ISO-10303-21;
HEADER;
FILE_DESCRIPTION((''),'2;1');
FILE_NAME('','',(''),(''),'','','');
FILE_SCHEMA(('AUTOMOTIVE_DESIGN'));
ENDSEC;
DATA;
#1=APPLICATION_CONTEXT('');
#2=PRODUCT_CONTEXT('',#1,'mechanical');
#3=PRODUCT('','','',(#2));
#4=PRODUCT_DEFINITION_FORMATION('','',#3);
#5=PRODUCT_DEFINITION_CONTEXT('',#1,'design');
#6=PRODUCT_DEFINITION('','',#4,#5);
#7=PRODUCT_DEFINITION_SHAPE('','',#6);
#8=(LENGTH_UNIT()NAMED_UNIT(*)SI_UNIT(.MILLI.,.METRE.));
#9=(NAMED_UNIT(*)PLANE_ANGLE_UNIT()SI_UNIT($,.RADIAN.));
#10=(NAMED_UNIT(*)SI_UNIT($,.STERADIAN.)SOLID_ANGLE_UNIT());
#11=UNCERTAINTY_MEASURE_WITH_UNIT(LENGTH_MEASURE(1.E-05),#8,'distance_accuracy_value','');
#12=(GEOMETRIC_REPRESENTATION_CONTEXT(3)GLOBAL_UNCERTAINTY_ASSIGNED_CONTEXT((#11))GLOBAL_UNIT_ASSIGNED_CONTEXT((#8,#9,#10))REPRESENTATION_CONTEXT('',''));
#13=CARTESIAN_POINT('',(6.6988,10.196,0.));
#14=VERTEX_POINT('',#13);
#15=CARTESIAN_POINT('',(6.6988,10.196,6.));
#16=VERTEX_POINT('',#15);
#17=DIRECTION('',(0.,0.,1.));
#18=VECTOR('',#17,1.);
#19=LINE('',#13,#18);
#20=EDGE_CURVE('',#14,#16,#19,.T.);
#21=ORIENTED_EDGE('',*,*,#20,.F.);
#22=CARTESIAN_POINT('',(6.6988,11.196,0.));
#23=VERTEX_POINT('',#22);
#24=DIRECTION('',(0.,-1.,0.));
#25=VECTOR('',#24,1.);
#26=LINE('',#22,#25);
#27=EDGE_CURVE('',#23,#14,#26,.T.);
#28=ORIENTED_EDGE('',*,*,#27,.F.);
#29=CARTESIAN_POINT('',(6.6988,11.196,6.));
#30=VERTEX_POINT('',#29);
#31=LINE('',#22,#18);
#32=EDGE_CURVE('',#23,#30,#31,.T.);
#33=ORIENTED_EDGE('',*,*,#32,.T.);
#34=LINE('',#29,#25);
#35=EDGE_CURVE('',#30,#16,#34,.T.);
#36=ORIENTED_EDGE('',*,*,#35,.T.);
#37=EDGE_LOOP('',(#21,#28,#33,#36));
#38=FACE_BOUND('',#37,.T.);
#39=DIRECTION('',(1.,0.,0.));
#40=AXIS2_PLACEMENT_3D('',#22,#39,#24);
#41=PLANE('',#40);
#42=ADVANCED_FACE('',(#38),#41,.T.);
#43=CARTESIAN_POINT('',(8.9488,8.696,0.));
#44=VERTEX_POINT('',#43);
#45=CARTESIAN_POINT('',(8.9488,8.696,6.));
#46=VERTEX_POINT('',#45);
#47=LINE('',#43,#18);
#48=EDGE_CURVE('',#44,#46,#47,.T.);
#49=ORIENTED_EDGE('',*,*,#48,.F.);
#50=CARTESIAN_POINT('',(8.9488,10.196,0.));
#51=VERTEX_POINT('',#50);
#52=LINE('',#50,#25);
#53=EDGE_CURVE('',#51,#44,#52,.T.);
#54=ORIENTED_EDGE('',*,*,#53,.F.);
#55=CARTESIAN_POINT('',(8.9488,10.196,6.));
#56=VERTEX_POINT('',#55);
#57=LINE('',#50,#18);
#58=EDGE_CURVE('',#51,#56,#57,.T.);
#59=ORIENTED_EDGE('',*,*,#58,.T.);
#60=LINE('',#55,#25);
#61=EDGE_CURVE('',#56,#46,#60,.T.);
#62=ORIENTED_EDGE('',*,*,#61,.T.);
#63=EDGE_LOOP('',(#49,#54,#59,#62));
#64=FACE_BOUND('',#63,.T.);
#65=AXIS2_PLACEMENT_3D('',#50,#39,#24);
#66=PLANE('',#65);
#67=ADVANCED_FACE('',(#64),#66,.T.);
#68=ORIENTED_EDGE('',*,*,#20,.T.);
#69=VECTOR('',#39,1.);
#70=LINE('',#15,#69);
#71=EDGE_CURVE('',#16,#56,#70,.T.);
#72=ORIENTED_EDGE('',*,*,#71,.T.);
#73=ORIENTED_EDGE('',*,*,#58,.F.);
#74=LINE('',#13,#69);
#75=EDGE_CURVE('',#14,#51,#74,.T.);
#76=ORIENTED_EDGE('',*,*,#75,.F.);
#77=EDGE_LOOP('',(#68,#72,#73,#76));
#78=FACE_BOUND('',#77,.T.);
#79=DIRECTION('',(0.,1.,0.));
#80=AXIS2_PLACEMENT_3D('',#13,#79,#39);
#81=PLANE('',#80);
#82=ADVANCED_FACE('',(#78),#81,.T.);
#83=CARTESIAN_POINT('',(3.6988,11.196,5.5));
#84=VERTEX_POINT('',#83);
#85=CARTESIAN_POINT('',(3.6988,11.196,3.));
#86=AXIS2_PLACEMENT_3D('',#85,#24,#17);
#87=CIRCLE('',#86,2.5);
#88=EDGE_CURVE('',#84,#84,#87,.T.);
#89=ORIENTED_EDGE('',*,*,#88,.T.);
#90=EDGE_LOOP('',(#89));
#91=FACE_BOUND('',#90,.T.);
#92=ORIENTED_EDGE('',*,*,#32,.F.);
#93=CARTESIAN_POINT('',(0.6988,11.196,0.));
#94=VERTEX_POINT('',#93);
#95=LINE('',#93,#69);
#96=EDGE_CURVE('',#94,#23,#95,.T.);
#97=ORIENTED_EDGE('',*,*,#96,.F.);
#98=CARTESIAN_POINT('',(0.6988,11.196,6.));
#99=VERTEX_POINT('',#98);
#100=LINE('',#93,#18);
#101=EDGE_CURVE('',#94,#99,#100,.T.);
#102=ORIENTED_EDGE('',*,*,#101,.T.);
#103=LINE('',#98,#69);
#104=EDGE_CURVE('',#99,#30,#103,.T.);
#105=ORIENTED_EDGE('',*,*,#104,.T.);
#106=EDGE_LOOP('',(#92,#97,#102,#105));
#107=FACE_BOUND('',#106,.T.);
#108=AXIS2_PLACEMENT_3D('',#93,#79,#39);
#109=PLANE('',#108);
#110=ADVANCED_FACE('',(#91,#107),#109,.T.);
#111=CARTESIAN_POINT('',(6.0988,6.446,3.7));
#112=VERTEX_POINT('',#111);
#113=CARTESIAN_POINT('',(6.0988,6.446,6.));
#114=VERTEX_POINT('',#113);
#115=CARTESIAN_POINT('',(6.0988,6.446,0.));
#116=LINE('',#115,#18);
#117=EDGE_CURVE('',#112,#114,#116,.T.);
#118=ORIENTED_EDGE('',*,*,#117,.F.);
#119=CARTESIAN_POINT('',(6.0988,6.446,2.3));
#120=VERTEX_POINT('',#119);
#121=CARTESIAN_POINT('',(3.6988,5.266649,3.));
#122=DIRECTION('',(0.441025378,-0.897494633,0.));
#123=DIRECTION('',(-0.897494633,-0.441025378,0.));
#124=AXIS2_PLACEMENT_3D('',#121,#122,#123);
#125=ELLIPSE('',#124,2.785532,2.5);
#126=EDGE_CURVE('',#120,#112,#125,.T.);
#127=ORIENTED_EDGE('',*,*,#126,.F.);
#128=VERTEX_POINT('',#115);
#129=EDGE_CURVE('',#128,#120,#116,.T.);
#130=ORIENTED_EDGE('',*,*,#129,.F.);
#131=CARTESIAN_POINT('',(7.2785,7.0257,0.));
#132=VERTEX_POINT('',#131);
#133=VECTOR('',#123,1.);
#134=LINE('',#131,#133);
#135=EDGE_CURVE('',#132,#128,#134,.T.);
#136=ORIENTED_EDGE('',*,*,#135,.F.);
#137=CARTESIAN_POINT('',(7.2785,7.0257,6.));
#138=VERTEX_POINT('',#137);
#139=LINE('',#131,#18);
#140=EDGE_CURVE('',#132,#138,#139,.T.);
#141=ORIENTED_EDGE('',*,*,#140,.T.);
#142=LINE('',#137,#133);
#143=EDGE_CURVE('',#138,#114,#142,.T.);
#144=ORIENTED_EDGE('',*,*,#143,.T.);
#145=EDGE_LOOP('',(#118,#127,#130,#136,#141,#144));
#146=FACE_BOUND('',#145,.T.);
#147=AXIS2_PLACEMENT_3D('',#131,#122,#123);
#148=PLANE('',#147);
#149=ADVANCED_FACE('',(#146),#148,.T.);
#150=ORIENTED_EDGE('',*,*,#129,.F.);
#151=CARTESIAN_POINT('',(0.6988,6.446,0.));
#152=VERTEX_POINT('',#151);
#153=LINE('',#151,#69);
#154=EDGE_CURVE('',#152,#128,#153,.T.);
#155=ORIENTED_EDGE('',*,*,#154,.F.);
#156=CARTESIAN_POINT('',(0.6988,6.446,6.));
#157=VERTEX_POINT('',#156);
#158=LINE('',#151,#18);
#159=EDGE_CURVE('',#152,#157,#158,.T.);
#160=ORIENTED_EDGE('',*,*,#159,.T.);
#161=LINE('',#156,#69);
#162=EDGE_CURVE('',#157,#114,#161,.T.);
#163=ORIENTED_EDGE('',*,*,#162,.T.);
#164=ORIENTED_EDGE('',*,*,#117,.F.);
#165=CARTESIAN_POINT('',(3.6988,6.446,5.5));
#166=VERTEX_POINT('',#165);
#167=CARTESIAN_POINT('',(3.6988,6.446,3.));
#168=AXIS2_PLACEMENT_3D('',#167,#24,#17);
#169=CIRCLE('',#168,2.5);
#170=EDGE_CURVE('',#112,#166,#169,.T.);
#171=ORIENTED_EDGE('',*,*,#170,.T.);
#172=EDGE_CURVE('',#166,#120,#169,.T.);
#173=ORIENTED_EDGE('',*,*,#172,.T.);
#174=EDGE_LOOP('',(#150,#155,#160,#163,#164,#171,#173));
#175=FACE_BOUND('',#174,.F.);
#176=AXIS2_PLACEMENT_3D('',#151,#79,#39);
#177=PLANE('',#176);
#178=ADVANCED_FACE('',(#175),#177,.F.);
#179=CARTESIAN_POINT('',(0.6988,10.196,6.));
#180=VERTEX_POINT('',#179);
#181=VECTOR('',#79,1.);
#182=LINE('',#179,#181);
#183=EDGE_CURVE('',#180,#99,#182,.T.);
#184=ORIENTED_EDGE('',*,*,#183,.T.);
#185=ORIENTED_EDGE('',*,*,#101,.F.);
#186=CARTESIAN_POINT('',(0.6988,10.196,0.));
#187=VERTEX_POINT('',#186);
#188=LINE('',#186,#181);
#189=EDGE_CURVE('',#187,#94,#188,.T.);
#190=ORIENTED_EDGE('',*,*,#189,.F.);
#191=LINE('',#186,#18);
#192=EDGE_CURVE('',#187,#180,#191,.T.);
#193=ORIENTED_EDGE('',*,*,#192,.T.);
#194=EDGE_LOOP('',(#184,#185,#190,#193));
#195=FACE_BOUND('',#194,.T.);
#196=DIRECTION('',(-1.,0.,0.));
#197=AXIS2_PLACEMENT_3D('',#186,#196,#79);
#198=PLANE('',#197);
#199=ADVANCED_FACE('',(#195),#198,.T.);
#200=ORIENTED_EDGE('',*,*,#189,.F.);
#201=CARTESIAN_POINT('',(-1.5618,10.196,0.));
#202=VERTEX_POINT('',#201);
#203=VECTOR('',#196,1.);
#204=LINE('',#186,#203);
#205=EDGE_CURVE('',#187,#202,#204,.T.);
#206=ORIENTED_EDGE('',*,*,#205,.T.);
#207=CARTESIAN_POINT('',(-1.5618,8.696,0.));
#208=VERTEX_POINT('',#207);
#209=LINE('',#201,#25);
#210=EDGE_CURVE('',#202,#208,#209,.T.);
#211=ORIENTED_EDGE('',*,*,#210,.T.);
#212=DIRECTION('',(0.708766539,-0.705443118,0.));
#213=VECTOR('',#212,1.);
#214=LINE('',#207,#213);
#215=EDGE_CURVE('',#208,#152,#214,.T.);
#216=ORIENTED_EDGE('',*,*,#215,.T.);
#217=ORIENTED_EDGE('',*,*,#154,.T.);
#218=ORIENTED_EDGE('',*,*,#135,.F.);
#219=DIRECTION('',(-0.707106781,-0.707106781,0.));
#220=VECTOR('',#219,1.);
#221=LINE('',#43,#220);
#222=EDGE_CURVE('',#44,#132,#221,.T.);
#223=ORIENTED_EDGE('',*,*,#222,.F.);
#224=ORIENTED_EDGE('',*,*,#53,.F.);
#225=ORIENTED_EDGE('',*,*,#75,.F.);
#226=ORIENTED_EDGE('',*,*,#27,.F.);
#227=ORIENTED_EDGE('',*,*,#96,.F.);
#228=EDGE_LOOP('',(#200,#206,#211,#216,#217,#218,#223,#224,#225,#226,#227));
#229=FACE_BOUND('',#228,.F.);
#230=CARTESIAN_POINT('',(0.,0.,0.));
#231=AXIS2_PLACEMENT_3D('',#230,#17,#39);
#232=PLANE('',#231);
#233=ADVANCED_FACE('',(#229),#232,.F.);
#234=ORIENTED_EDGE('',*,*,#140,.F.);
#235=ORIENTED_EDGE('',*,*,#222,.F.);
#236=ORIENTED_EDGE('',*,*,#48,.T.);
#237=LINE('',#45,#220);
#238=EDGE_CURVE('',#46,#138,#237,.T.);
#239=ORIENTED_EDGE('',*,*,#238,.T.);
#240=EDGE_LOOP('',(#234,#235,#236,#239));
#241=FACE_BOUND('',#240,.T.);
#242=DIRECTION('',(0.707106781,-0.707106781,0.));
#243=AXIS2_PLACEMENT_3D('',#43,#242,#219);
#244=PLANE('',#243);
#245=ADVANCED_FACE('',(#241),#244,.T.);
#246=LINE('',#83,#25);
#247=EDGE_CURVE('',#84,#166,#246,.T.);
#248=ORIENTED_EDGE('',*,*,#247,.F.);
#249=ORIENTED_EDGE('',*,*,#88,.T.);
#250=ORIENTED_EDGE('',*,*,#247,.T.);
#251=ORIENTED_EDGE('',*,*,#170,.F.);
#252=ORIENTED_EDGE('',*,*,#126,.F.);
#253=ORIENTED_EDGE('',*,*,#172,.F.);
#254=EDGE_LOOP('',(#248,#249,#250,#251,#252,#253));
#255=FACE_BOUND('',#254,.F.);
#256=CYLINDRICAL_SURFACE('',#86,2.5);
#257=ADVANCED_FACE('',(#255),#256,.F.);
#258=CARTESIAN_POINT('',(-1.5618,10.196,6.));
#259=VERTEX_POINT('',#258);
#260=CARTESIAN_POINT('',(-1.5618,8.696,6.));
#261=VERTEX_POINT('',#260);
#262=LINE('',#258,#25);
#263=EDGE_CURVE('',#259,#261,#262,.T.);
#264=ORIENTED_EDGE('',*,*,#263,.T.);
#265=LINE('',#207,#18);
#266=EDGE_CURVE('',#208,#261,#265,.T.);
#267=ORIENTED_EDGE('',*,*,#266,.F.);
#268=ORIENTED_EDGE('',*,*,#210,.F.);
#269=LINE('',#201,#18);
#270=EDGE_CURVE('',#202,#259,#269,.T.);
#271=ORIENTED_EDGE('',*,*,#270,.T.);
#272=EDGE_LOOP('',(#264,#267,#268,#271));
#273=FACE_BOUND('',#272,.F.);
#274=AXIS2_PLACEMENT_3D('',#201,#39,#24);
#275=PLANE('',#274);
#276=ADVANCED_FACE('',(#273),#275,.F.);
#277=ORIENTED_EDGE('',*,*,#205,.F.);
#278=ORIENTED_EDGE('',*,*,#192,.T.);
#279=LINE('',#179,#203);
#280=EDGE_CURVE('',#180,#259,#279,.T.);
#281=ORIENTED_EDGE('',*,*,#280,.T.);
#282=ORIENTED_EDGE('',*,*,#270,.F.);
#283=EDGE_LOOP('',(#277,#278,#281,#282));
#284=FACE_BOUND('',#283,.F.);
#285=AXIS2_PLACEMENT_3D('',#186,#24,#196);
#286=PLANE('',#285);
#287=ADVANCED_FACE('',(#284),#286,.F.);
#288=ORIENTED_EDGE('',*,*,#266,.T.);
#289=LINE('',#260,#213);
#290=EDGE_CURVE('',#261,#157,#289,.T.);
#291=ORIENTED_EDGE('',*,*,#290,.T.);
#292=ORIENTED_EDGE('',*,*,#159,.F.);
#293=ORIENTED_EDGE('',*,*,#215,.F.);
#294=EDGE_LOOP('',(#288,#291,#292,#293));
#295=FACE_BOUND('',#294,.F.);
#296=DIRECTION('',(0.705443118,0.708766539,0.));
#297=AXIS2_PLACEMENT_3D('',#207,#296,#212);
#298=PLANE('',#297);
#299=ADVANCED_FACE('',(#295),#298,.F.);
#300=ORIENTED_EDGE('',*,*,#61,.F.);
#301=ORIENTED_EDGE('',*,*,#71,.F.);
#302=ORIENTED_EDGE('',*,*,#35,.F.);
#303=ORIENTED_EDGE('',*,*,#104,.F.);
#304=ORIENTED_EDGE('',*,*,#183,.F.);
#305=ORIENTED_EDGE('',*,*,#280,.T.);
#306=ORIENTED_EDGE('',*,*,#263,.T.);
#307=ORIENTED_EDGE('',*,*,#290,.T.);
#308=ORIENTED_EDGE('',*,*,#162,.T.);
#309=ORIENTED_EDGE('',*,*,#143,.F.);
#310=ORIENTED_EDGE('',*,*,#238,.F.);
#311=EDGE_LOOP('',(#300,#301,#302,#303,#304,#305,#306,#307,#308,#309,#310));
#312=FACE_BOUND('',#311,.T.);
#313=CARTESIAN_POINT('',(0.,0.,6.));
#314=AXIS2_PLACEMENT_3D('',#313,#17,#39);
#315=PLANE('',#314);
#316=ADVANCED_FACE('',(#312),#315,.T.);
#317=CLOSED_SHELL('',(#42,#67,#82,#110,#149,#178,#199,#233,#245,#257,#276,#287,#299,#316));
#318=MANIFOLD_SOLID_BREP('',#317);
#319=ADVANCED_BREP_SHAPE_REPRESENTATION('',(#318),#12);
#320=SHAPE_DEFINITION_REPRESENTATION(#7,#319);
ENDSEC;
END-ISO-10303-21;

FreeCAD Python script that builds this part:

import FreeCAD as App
import Part
import Sketcher
Q = App.Units.Quantity


def add_polygon(sketch, points):
    """Adds a closed chain of lines whose ends are joined by coincident constraints."""
    first, n = sketch.GeometryCount, len(points)
    for a, b in zip(points, points[1:] + points[:1]):
        sketch.addGeometry(Part.LineSegment(App.Vector(*a, 0), App.Vector(*b, 0)), False)
    for i in range(n):
        sketch.addConstraint(Sketcher.Constraint("Coincident", first + i, 2, first + (i + 1) % n, 1))

doc = App.newDocument("Part")
params = doc.addObject("Spreadsheet::Sheet", "Params")
for row, (alias, value) in enumerate([
    ("sketch1_width", "6 mm"),
    ("sketch1_height", "1 mm"),
    ("sketch1_height2", "1.5 mm"),
    ("sketch1_width2", "2.25 mm"),
    ("sketch1_width3", "5.4 mm"),
    ("pad1_length", "6 mm"),
    ("sketch2_diameter", "5 mm"),
    ("hole_diameter", "5 mm"),
], start=1):
    params.set(f"A{row}", alias)
    params.set(f"B{row}", "=" + value)
    params.setAlias(f"B{row}", alias)

body = doc.addObject("PartDesign::Body", "Body")

# Sketch on XY plane
sketch1 = body.newObject("Sketcher::SketchObject", "Sketch")
sketch1.AttachmentSupport = (doc.getObject("XY_Plane"), [""])
sketch1.MapMode = "FlatFace"
add_polygon(sketch1, [(0.7, 11.2), (0.7, 10.2), (-1.6, 10.2), (-1.6, 8.7), (0.7, 6.4), (6.1, 6.4), (7.3, 7), (8.9, 8.7), (8.9, 10.2), (6.7, 10.2), (6.7, 11.2)])  # lines 0-10
sketch1.addConstraint([
    Sketcher.Constraint("Vertical", 0),
    Sketcher.Constraint("Horizontal", 1),
    Sketcher.Constraint("Vertical", 2),
    Sketcher.Constraint("Horizontal", 4),
    Sketcher.Constraint("Vertical", 7),
    Sketcher.Constraint("Horizontal", 8),
    Sketcher.Constraint("Vertical", 9),
    Sketcher.Constraint("Horizontal", 10),
    Sketcher.Constraint("Horizontal", 2, 2, 6, 2),
    Sketcher.Constraint("Horizontal", 1, 2, 7, 2),
    Sketcher.Constraint("Vertical", 0, 2, 3, 2),
    Sketcher.Constraint("DistanceX", 10, 2, 10, 1, 6.0),
    Sketcher.Constraint("DistanceY", 0, 2, 0, 1, 1.0),
    Sketcher.Constraint("DistanceY", 2, 2, 2, 1, 1.5),
    Sketcher.Constraint("DistanceX", 8, 2, 8, 1, 2.25),
    Sketcher.Constraint("Angle", 6, Q("45 deg")),
    Sketcher.Constraint("DistanceY", 3, 2, 2, 2, 2.25),
    Sketcher.Constraint("DistanceX", 1, 2, 1, 1, 2.2606),
    Sketcher.Constraint("DistanceX", 4, 1, 4, 2, 5.4),
    Sketcher.Constraint("Distance", 6, 2.3622),
    Sketcher.Constraint("DistanceY", -1, 1, 0, 2, 10.196),
    Sketcher.Constraint("DistanceX", -1, 1, 0, 2, 0.6988),
])
sketch1.setExpression("Constraints[22]", "Params.sketch1_width")
sketch1.setExpression("Constraints[23]", "Params.sketch1_height")
sketch1.setExpression("Constraints[24]", "Params.sketch1_height2")
sketch1.setExpression("Constraints[25]", "Params.sketch1_width2")
sketch1.setExpression("Constraints[29]", "Params.sketch1_width3")
pad1 = body.newObject("PartDesign::Pad", "Pad")
pad1.Profile = sketch1
pad1.setExpression("Length", "Params.pad1_length")

# Sketch on XZ plane
sketch2 = body.newObject("Sketcher::SketchObject", "Sketch001")
sketch2.AttachmentSupport = (doc.getObject("XZ_Plane"), [""])
sketch2.MapMode = "FlatFace"
sketch2.AttachmentOffset = App.Placement(App.Vector(0, 0, -11.196), App.Rotation())
sketch2.addGeometry(Part.Circle(App.Vector(3.7, 3, 0), App.Vector(0, 0, 1), 2.5), False)
sketch2.addConstraint([
    Sketcher.Constraint("Diameter", 0, 5.0),
    Sketcher.Constraint("DistanceY", -1, 1, 0, 3, 3.0),
    Sketcher.Constraint("DistanceX", -1, 1, 0, 3, 3.6988),
])
sketch2.setExpression("Constraints[0]", "Params.sketch2_diameter")
doc.recompute()
hole = body.newObject("PartDesign::Hole", "Hole")
hole.Profile = sketch2
hole.ThreadType = "None"
hole.setExpression("Diameter", "Params.hole_diameter")
hole.DepthType = "ThroughAll"
hole.Reversed = True

doc.recompute()
